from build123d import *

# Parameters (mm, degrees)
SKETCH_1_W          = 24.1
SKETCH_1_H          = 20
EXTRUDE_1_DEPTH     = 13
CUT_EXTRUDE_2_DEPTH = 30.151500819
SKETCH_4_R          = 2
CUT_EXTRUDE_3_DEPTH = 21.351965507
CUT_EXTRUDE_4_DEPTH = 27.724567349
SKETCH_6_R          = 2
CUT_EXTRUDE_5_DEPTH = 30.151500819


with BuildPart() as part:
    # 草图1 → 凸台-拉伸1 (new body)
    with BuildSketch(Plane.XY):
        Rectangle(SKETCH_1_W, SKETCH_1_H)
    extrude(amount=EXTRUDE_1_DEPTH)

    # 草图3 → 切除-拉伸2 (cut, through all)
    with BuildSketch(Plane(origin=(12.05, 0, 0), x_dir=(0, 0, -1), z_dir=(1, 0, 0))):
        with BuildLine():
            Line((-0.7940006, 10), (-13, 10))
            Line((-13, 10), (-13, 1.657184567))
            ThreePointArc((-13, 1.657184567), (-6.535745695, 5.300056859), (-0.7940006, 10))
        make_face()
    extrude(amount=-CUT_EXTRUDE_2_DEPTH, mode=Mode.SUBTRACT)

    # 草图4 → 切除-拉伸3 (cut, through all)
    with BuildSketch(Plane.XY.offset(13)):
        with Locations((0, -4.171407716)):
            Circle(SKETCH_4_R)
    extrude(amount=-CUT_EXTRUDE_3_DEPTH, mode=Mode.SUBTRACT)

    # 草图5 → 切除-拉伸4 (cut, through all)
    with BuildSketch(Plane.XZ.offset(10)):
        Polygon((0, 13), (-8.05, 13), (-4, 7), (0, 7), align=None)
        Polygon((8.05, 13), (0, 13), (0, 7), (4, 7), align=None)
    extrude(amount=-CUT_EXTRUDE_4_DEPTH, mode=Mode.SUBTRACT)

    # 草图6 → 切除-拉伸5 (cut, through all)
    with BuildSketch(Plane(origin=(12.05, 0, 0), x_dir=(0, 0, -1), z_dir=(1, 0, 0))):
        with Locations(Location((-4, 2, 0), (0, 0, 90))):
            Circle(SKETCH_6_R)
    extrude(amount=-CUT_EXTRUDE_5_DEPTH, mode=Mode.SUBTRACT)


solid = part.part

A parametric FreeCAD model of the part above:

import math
import FreeCAD as App
import Part
import Sketcher
from FreeCAD import Vector

doc = App.newDocument("Part")
body = doc.addObject("PartDesign::Body", "Body")

# Sketch on XY plane
sketch1 = doc.addObject("Sketcher::SketchObject", "Sketch")
body.addObject(sketch1)
sketch1.AttachmentSupport = (doc.XY_Plane, [""])
sketch1.MapMode = "FlatFace"
sketch1.addGeometry([
    Part.LineSegment(Vector(-12.05, 10, 0), Vector(-12.05, -10, 0)),
    Part.LineSegment(Vector(-12.05, -10, 0), Vector(12.05, -10, 0)),
    Part.LineSegment(Vector(12.05, -10, 0), Vector(12.05, 10, 0)),
    Part.LineSegment(Vector(12.05, 10, 0), Vector(-12.05, 10, 0)),
], False)
sketch1.addConstraint([
    Sketcher.Constraint("Coincident", 0, 2, 1, 1),
    Sketcher.Constraint("Coincident", 1, 2, 2, 1),
    Sketcher.Constraint("Coincident", 2, 2, 3, 1),
    Sketcher.Constraint("Coincident", 3, 2, 0, 1),
    Sketcher.Constraint("Vertical", 0),
    Sketcher.Constraint("Horizontal", 1),
    Sketcher.Constraint("Vertical", 2),
    Sketcher.Constraint("Horizontal", 3),
    Sketcher.Constraint("Symmetric", 0, 2, 2, 2, -1, 1),
    Sketcher.Constraint("DistanceY", 0, 2, 0, 1, 20.0),
    Sketcher.Constraint("DistanceX", 1, 1, 1, 2, 24.1),
])
pad1 = doc.addObject("PartDesign::Pad", "Pad")
body.addObject(pad1)
pad1.Profile = sketch1
pad1.Length = 13

# Sketch on YZ plane
sketch2 = doc.addObject("Sketcher::SketchObject", "Sketch001")
body.addObject(sketch2)
sketch2.AttachmentSupport = (doc.YZ_Plane, [""])
sketch2.MapMode = "FlatFace"
sketch2.AttachmentOffset = App.Placement(Vector(0, 0, 12.05), App.Rotation())
sketch2.addGeometry([
    Part.LineSegment(Vector(10, 0.794001, 0), Vector(10, 13, 0)),
    Part.LineSegment(Vector(10, 13, 0), Vector(1.657185, 13, 0)),
    Part.ArcOfCircle(Part.Circle(Vector(40.8, 30.8, 0), Vector(0, 0, 1), 43), math.radians(-155.54657), math.radians(-135.748122)),
], False)
sketch2.addConstraint([
    Sketcher.Constraint("Coincident", 0, 2, 1, 1),
    Sketcher.Constraint("Coincident", 1, 2, 2, 1),
    Sketcher.Constraint("Coincident", 2, 2, 0, 1),
    Sketcher.Constraint("Vertical", 0),
    Sketcher.Constraint("Horizontal", 1),
    Sketcher.Constraint("Radius", 2, 43.0),
    Sketcher.Constraint("DistanceX", -1, 1, 0, 2, 10.0),
    Sketcher.Constraint("DistanceY", -1, 1, 0, 2, 13.0),
    Sketcher.Constraint("DistanceX", -1, 1, 2, 3, 40.8),
    Sketcher.Constraint("DistanceY", -1, 1, 2, 3, 30.8),
])
pocket1 = doc.addObject("PartDesign::Pocket", "Pocket")
body.addObject(pocket1)
pocket1.Profile = sketch2
pocket1.Type = "ThroughAll"

# Sketch on XY plane
sketch3 = doc.addObject("Sketcher::SketchObject", "Sketch002")
body.addObject(sketch3)
sketch3.AttachmentSupport = (doc.XY_Plane, [""])
sketch3.MapMode = "FlatFace"
sketch3.AttachmentOffset = App.Placement(Vector(0, 0, 13), App.Rotation())
sketch3.addGeometry(Part.Circle(Vector(0, -4.171408, 0), Vector(0, 0, 1), 2), False)
sketch3.addConstraint([
    Sketcher.Constraint("PointOnObject", 0, 3, -2),
    Sketcher.Constraint("Diameter", 0, 4.0),
    Sketcher.Constraint("DistanceY", 0, 3, -1, 1, 4.171408),
])
pocket2 = doc.addObject("PartDesign::Pocket", "Pocket001")
body.addObject(pocket2)
pocket2.Profile = sketch3
pocket2.Type = "ThroughAll"

# Sketch on XZ plane
sketch4 = doc.addObject("Sketcher::SketchObject", "Sketch003")
body.addObject(sketch4)
sketch4.AttachmentSupport = (doc.XZ_Plane, [""])
sketch4.MapMode = "FlatFace"
sketch4.AttachmentOffset = App.Placement(Vector(0, 0, 10), App.Rotation())
sketch4.addGeometry([
    Part.LineSegment(Vector(-8.05, 13, 0), Vector(-4, 7, 0)),
    Part.LineSegment(Vector(-4, 7, 0), Vector(4, 7, 0)),
    Part.LineSegment(Vector(4, 7, 0), Vector(8.05, 13, 0)),
    Part.LineSegment(Vector(8.05, 13, 0), Vector(-8.05, 13, 0)),
], False)
sketch4.addConstraint([
    Sketcher.Constraint("Coincident", 0, 2, 1, 1),
    Sketcher.Constraint("Coincident", 1, 2, 2, 1),
    Sketcher.Constraint("Coincident", 2, 2, 3, 1),
    Sketcher.Constraint("Coincident", 3, 2, 0, 1),
    Sketcher.Constraint("Horizontal", 1),
    Sketcher.Constraint("Horizontal", 3),
    Sketcher.Constraint("Equal", 0, 2),
    Sketcher.Constraint("DistanceX", 1, 1, 1, 2, 8.0),
    Sketcher.Constraint("DistanceX", 3, 2, 3, 1, 16.1),
    Sketcher.Constraint("DistanceX", 0, 2, -1, 1, 4.0),
    Sketcher.Constraint("DistanceY", -1, 1, 0, 2, 7.0),
    Sketcher.Constraint("DistanceY", -1, 1, 2, 2, 13.0),
])
pocket3 = doc.addObject("PartDesign::Pocket", "Pocket002")
body.addObject(pocket3)
pocket3.Profile = sketch4
pocket3.Type = "ThroughAll"

# Sketch on YZ plane
sketch5 = doc.addObject("Sketcher::SketchObject", "Sketch004")
body.addObject(sketch5)
sketch5.AttachmentSupport = (doc.YZ_Plane, [""])
sketch5.MapMode = "FlatFace"
sketch5.AttachmentOffset = App.Placement(Vector(0, 0, 12.05), App.Rotation())
sketch5.addGeometry(Part.Circle(Vector(2, 4, 0), Vector(0, 0, 1), 2), False)
sketch5.addConstraint([
    Sketcher.Constraint("Diameter", 0, 4.0),
    Sketcher.Constraint("DistanceX", -1, 1, 0, 3, 2.0),
    Sketcher.Constraint("DistanceY", -1, 1, 0, 3, 4.0),
])
pocket4 = doc.addObject("PartDesign::Pocket", "Pocket003")
body.addObject(pocket4)
pocket4.Profile = sketch5
pocket4.Type = "ThroughAll"

doc.recompute()
